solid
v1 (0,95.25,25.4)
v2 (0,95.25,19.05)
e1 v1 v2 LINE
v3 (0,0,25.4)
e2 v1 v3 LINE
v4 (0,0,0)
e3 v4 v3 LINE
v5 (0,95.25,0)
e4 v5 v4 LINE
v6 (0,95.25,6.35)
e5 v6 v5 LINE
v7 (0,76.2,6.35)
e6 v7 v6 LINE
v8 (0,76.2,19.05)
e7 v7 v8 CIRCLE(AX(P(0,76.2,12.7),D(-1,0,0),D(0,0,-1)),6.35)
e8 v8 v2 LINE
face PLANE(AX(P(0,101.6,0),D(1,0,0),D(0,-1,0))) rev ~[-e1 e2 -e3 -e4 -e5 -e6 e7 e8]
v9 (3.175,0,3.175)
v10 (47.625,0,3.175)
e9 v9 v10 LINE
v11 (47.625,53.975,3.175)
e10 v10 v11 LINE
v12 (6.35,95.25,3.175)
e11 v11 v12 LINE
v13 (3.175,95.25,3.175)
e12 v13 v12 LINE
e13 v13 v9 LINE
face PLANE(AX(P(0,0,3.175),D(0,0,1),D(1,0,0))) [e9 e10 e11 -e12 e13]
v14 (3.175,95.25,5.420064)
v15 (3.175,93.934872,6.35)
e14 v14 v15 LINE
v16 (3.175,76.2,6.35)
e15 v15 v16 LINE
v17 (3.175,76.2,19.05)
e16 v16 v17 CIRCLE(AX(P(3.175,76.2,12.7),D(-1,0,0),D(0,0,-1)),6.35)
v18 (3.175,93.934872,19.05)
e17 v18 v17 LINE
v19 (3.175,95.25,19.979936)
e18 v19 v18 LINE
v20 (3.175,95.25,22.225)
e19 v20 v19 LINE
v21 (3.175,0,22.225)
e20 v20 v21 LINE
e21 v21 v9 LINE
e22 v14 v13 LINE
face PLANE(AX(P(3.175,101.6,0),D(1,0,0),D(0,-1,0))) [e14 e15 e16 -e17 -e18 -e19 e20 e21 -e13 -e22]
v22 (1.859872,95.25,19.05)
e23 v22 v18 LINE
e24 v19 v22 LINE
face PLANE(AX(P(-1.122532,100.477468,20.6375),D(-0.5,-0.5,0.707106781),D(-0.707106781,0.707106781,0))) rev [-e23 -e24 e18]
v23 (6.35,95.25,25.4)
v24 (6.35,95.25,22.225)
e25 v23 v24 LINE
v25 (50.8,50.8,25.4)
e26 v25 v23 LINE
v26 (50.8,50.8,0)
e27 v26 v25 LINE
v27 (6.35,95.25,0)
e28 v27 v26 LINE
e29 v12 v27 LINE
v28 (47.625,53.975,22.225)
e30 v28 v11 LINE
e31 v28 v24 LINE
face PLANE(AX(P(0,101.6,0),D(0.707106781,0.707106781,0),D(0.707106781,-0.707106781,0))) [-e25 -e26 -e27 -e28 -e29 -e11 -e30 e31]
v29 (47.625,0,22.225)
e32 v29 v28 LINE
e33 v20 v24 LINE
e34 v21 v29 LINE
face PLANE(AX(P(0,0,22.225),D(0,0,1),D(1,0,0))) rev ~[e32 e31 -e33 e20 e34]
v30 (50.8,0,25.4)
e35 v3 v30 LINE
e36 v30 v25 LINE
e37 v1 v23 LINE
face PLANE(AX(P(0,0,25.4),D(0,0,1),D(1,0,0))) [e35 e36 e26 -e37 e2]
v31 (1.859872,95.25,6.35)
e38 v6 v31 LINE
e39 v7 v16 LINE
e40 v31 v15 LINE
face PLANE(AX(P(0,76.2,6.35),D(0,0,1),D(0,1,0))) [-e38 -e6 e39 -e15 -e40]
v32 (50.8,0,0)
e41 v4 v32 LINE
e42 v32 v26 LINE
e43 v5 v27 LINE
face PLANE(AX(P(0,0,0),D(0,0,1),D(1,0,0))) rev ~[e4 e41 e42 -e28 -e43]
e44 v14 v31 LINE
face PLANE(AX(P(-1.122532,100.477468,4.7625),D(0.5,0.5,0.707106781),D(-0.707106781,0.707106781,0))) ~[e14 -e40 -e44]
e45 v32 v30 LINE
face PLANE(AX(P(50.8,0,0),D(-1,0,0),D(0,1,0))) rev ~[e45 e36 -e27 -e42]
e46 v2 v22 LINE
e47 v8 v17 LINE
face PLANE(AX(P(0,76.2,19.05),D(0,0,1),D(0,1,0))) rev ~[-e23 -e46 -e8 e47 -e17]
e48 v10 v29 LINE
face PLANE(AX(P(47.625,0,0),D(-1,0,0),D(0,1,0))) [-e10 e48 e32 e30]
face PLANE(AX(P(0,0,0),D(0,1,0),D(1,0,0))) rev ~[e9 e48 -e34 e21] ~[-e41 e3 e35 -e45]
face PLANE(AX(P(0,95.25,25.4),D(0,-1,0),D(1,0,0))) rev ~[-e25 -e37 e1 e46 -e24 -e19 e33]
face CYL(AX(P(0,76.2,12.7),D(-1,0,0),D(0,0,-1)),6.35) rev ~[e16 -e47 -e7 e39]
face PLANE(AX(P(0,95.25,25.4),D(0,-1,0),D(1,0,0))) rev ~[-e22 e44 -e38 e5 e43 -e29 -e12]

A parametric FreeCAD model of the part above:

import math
import FreeCAD as App
import Part
import Sketcher

V = App.Vector
Q = App.Units.Quantity


def edges_at(feature, points):
    """Names of the edges that pass closest to the given points."""
    edges = feature.Shape.Edges
    near = lambda p: min(range(len(edges)), key=lambda i: edges[i].distToShape(Part.Vertex(*p))[0])
    return sorted({f"Edge{near(p) + 1}" for p in points})


def faces_at(feature, points):
    """Names of the faces that lie closest to the given points."""
    faces = feature.Shape.Faces
    near = lambda p: min(range(len(faces)), key=lambda i: faces[i].distToShape(Part.Vertex(*p))[0])
    return sorted({f"Face{near(p) + 1}" for p in points})


def add_polygon(sketch, points):
    """Adds a closed chain of lines whose ends are joined by coincident constraints."""
    first, n = sketch.GeometryCount, len(points)
    for a, b in zip(points, points[1:] + points[:1]):
        sketch.addGeometry(Part.LineSegment(App.Vector(*a, 0), App.Vector(*b, 0)), False)
    for i in range(n):
        sketch.addConstraint(Sketcher.Constraint("Coincident", first + i, 2, first + (i + 1) % n, 1))

doc = App.newDocument("Part")
body = doc.addObject("PartDesign::Body", "Body")

# Sketch on XY plane
sketch1 = body.newObject("Sketcher::SketchObject", "Sketch")
sketch1.AttachmentSupport = (doc.getObject("XY_Plane"), [""])
sketch1.MapMode = "FlatFace"
add_polygon(sketch1, [(0, 102), (0, 0), (51, 0), (51, 102)])  # lines 0-3
sketch1.addConstraint([
    Sketcher.Constraint("Vertical", 0),
    Sketcher.Constraint("Horizontal", 1),
    Sketcher.Constraint("Vertical", 2),
    Sketcher.Constraint("Horizontal", 3),
    Sketcher.Constraint("Coincident", 0, 2, -1, 1),
    Sketcher.Constraint("DistanceX", 1, 1, 1, 2, Q("2 in")),
    Sketcher.Constraint("DistanceY", 0, 2, 0, 1, Q("4 in")),
])
pad1 = body.newObject("PartDesign::Pad", "Pad")
pad1.Profile = sketch1
pad1.Length = Q("1 in")
doc.recompute()

thickness = body.newObject("PartDesign::Thickness", "Thickness")
thickness.Base = (pad1, faces_at(pad1, [(33.867, 101.6, 16.933), (16.933, 0, 16.933)]))
thickness.Value = Q("0.125 in")
thickness.Reversed = True
thickness.Join = "Intersection"

# Sketch on XY plane
sketch2 = body.newObject("Sketcher::SketchObject", "Sketch001")
sketch2.AttachmentSupport = (doc.getObject("XY_Plane"), [""])
sketch2.MapMode = "FlatFace"
add_polygon(sketch2, [(0, 102), (51, 102), (51, 51)])  # lines 0-2
sketch2.addConstraint([
    Sketcher.Constraint("Horizontal", 0),
    Sketcher.Constraint("Vertical", 1),
    Sketcher.Constraint("PointOnObject", 2, 2, -2),
    Sketcher.Constraint("Equal", 0, 1),
    Sketcher.Constraint("DistanceX", 0, 1, 0, 2, Q("2 in")),
    Sketcher.Constraint("DistanceY", -1, 1, 1, 2, Q("2 in")),
])
pocket1 = body.newObject("PartDesign::Pocket", "Pocket")
pocket1.Profile = sketch2
pocket1.Type = "ThroughAll"
pocket1.Reversed = True

# Sketch on YZ plane
sketch3 = body.newObject("Sketcher::SketchObject", "Sketch002")
sketch3.AttachmentSupport = (doc.getObject("YZ_Plane"), [""])
sketch3.MapMode = "FlatFace"
sketch3.addGeometry([
    Part.LineSegment(V(102, 19, 0), V(102, 6, 0)),
    Part.LineSegment(V(102, 6, 0), V(76, 6, 0)),
    Part.ArcOfCircle(Part.Circle(V(76, 13, 0), V(0, 0, 1), 6), math.radians(90), math.radians(270)),
    Part.LineSegment(V(76, 19, 0), V(102, 19, 0)),
], False)
sketch3.addConstraint([
    Sketcher.Constraint("Coincident", 0, 2, 1, 1),
    Sketcher.Constraint("Tangent", 1, 2, 2, 2),
    Sketcher.Constraint("Tangent", 2, 1, 3, 1),
    Sketcher.Constraint("Coincident", 3, 2, 0, 1),
    Sketcher.Constraint("Vertical", 0),
    Sketcher.Constraint("Horizontal", 1),
    Sketcher.Constraint("Horizontal", 3),
    Sketcher.Constraint("DistanceX", 1, 2, 1, 1, Q("1 in")),
    Sketcher.Constraint("Radius", 2, Q("0.25 in")),
    Sketcher.Constraint("DistanceY", -1, 1, 2, 3, Q("0.5 in")),
    Sketcher.Constraint("DistanceX", -1, 1, 2, 3, Q("3 in")),
])
pocket2 = body.newObject("PartDesign::Pocket", "Pocket001")
pocket2.Profile = sketch3
pocket2.Type = "ThroughAll"
pocket2.Reversed = True
doc.recompute()

chamfer = body.newObject("PartDesign::Chamfer", "Chamfer")
chamfer.Base = (pocket2, edges_at(pocket2, [(1.587, 100.013, 6.35), (1.587, 100.013, 19.05)]))
chamfer.Size = Q("0.125 in")

# Sketch on XY plane
sketch4 = body.newObject("Sketcher::SketchObject", "Sketch003")
sketch4.AttachmentSupport = (doc.getObject("XY_Plane"), [""])
sketch4.MapMode = "FlatFace"
sketch4.AttachmentOffset = App.Placement(V(0, 0, 1 * 25.4), App.Rotation())
add_polygon(sketch4, [(0, 95), (6, 95), (0, 102)])  # lines 0-2
sketch4.addConstraint([
    Sketcher.Constraint("Horizontal", 0),
    Sketcher.Constraint("Vertical", 2),
    Sketcher.Constraint("PointOnObject", 1, 2, -2),
    Sketcher.Constraint("Equal", 0, 2),
    Sketcher.Constraint("DistanceX", 0, 1, 0, 2, Q("0.25 in")),
    Sketcher.Constraint("DistanceY", -1, 1, 1, 2, Q("4 in")),
])
pocket3 = body.newObject("PartDesign::Pocket", "Pocket002")
pocket3.Profile = sketch4
pocket3.Type = "ThroughAll"

doc.recompute()
